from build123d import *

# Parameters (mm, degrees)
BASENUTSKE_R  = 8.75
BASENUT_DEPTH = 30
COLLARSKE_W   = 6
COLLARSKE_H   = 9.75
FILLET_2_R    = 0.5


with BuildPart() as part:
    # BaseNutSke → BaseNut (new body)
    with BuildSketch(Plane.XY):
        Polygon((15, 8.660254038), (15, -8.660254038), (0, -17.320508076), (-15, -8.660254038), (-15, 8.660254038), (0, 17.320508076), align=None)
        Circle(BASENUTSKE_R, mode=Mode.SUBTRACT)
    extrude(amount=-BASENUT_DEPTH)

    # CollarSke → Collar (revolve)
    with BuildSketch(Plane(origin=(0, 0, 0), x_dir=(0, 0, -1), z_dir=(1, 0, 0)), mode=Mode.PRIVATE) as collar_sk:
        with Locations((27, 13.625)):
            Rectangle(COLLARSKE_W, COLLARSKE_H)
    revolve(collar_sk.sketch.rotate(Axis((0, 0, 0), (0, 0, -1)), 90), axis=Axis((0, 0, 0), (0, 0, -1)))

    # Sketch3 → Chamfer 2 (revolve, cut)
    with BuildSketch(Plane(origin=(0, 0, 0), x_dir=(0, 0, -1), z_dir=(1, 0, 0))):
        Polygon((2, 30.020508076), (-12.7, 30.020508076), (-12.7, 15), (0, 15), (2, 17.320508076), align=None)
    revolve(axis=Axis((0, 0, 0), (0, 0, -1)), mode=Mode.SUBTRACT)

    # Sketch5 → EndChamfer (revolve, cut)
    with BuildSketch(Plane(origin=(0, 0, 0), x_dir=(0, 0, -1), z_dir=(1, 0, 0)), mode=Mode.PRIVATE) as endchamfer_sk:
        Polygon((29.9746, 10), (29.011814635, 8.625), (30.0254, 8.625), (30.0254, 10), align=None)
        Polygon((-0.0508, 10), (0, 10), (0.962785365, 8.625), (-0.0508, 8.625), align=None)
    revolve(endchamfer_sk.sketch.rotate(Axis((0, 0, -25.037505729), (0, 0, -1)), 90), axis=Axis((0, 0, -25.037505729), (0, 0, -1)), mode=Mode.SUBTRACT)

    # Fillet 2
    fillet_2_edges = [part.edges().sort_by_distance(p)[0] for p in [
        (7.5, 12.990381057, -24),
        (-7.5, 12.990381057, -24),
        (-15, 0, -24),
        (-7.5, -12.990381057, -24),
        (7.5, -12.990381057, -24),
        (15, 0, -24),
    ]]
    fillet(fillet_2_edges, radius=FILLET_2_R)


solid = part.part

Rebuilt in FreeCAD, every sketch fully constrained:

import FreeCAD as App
import Part
import Sketcher
from FreeCAD import Vector
Q = App.Units.Quantity


def edges_at(feature, points):
    """Names of the edges that pass closest to the given points."""
    edges = feature.Shape.Edges
    near = lambda p: min(range(len(edges)), key=lambda i: edges[i].distToShape(Part.Vertex(*p))[0])
    return sorted({f"Edge{near(p) + 1}" for p in points})


def add_polygon(sketch, points):
    """Adds a closed chain of lines whose ends are joined by coincident constraints."""
    first, n = sketch.GeometryCount, len(points)
    for a, b in zip(points, points[1:] + points[:1]):
        sketch.addGeometry(Part.LineSegment(App.Vector(*a, 0), App.Vector(*b, 0)), False)
    for i in range(n):
        sketch.addConstraint(Sketcher.Constraint("Coincident", first + i, 2, first + (i + 1) % n, 1))

doc = App.newDocument("Part")
body = doc.addObject("PartDesign::Body", "Body")

# Sketch on XY plane
sketch1 = doc.addObject("Sketcher::SketchObject", "Sketch")
body.addObject(sketch1)
sketch1.AttachmentSupport = (doc.XY_Plane, [""])
sketch1.MapMode = "FlatFace"
add_polygon(sketch1, [(15, -9), (15, 9), (0, 17), (-15, 9), (-15, -9), (0, -17)])  # lines 0-5
sketch1.addGeometry(Part.Circle(Vector(0, 0, 0), Vector(0, 0, 1), 9), False)  # 6
sketch1.addConstraint([
    Sketcher.Constraint("Vertical", 0),
    Sketcher.Constraint("Vertical", 3),
    Sketcher.Constraint("Coincident", 6, 3, -1, 1),
    Sketcher.Constraint("Symmetric", 0, 2, 3, 2, -1, 1),
    Sketcher.Constraint("Symmetric", 1, 2, 4, 2, -1, 1),
    Sketcher.Constraint("PointOnObject", 1, 2, -2),
    Sketcher.Constraint("Parallel", 2, 5),
    Sketcher.Constraint("Horizontal", 0, 2, 2, 2),
    Sketcher.Constraint("Diameter", 6, Q("17.5 mm")),
    Sketcher.Constraint("Angle", 1, Q("150 deg")),
    Sketcher.Constraint("DistanceX", -1, 1, 0, 2, Q("15 mm")),
    Sketcher.Constraint("DistanceY", 0, 1, 0, 2, Q("17.320508 mm")),
])
pad1 = doc.addObject("PartDesign::Pad", "Pad")
body.addObject(pad1)
pad1.Profile = sketch1
pad1.Length = 30
pad1.Reversed = True

# Sketch on YZ plane
sketch2 = doc.addObject("Sketcher::SketchObject", "Sketch001")
body.addObject(sketch2)
sketch2.AttachmentSupport = (doc.YZ_Plane, [""])
sketch2.MapMode = "FlatFace"
add_polygon(sketch2, [(18, -24), (9, -24), (9, -30), (18, -30)])  # lines 0-3
sketch2.addConstraint([
    Sketcher.Constraint("Horizontal", 0),
    Sketcher.Constraint("Vertical", 1),
    Sketcher.Constraint("Horizontal", 2),
    Sketcher.Constraint("Vertical", 3),
    Sketcher.Constraint("DistanceY", 1, 2, 1, 1, Q("6 mm")),
    Sketcher.Constraint("DistanceY", 0, 2, -1, 1, Q("24 mm")),
    Sketcher.Constraint("DistanceX", 0, 2, 0, 1, Q("9.75 mm")),
    Sketcher.Constraint("DistanceX", -1, 1, 2, 2, Q("18.5 mm")),
])
revolution = doc.addObject("PartDesign::Revolution", "Revolution")
body.addObject(revolution)
revolution.Profile = sketch2
revolution.ReferenceAxis = (sketch2, ["V_Axis"])
revolution.Angle = 360

# Sketch on YZ plane
sketch3 = doc.addObject("Sketcher::SketchObject", "Sketch002")
body.addObject(sketch3)
sketch3.AttachmentSupport = (doc.YZ_Plane, [""])
sketch3.MapMode = "FlatFace"
add_polygon(sketch3, [(30, -2), (30, 12.7), (15, 12.7), (15, 0), (17.3, -2)])  # lines 0-4
sketch3.addConstraint([
    Sketcher.Constraint("Vertical", 0),
    Sketcher.Constraint("Horizontal", 1),
    Sketcher.Constraint("Vertical", 2),
    Sketcher.Constraint("Horizontal", 4),
    Sketcher.Constraint("PointOnObject", 2, 2, -1),
    Sketcher.Constraint("Equal", 4, 2),
    Sketcher.Constraint("DistanceX", 4, 1, 4, 2, Q("12.7 mm")),
    Sketcher.Constraint("DistanceY", 0, 1, 0, 2, Q("14.7 mm")),
    Sketcher.Constraint("DistanceX", -1, 1, 1, 2, Q("15 mm")),
    Sketcher.Constraint("DistanceX", 1, 2, 1, 1, Q("15.020508 mm")),
])
groove = doc.addObject("PartDesign::Groove", "Groove")
body.addObject(groove)
groove.Profile = sketch3
groove.ReferenceAxis = (sketch3, ["V_Axis"])
groove.Angle = 360

# Sketch on YZ plane
sketch4 = doc.addObject("Sketcher::SketchObject", "Sketch003")
body.addObject(sketch4)
sketch4.AttachmentSupport = (doc.YZ_Plane, [""])
sketch4.MapMode = "FlatFace"
add_polygon(sketch4, [(10, -29.97), (8.62, -29.01), (8.62, -30.03), (10, -30.03)])  # lines 0-3
add_polygon(sketch4, [(10, 0), (10, 0.05), (8.62, 0.05), (8.62, -0.96)])  # lines 4-7
sketch4.addConstraint([
    Sketcher.Constraint("Vertical", 1),
    Sketcher.Constraint("Horizontal", 2),
    Sketcher.Constraint("Vertical", 3),
    Sketcher.Constraint("Vertical", 4),
    Sketcher.Constraint("Horizontal", 5),
    Sketcher.Constraint("Vertical", 6),
    Sketcher.Constraint("PointOnObject", 7, 2, -1),
    Sketcher.Constraint("Vertical", 3, 2, 4, 2),
    Sketcher.Constraint("Vertical", 1, 2, 5, 2),
    Sketcher.Constraint("Equal", 3, 4),
    Sketcher.Constraint("Equal", 1, 6),
    Sketcher.Constraint("Angle", 0, Q("145 deg")),
    Sketcher.Constraint("DistanceX", -1, 1, 2, 2, Q("10 mm")),
    Sketcher.Constraint("DistanceX", 2, 1, 2, 2, Q("1.375 mm")),
    Sketcher.Constraint("DistanceY", 3, 1, 3, 2, Q("0.0508 mm")),
    Sketcher.Constraint("DistanceY", 1, 2, -1, 1, Q("30.0254 mm")),
])
groove2 = doc.addObject("PartDesign::Groove", "Groove001")
body.addObject(groove2)
groove2.Profile = sketch4
groove2.ReferenceAxis = (sketch4, ["V_Axis"])
groove2.Angle = 360
doc.recompute()

fillet = doc.addObject("PartDesign::Fillet", "Fillet")
body.addObject(fillet)
fillet.Base = (groove2, edges_at(groove2, [
    (7.5, 12.99, -24),
    (-7.5, 12.99, -24),
    (-15, 0, -24),
    (-7.5, -12.99, -24),
    (7.5, -12.99, -24),
    (15, 0, -24),
]))
fillet.Radius = 0.5

doc.recompute()
